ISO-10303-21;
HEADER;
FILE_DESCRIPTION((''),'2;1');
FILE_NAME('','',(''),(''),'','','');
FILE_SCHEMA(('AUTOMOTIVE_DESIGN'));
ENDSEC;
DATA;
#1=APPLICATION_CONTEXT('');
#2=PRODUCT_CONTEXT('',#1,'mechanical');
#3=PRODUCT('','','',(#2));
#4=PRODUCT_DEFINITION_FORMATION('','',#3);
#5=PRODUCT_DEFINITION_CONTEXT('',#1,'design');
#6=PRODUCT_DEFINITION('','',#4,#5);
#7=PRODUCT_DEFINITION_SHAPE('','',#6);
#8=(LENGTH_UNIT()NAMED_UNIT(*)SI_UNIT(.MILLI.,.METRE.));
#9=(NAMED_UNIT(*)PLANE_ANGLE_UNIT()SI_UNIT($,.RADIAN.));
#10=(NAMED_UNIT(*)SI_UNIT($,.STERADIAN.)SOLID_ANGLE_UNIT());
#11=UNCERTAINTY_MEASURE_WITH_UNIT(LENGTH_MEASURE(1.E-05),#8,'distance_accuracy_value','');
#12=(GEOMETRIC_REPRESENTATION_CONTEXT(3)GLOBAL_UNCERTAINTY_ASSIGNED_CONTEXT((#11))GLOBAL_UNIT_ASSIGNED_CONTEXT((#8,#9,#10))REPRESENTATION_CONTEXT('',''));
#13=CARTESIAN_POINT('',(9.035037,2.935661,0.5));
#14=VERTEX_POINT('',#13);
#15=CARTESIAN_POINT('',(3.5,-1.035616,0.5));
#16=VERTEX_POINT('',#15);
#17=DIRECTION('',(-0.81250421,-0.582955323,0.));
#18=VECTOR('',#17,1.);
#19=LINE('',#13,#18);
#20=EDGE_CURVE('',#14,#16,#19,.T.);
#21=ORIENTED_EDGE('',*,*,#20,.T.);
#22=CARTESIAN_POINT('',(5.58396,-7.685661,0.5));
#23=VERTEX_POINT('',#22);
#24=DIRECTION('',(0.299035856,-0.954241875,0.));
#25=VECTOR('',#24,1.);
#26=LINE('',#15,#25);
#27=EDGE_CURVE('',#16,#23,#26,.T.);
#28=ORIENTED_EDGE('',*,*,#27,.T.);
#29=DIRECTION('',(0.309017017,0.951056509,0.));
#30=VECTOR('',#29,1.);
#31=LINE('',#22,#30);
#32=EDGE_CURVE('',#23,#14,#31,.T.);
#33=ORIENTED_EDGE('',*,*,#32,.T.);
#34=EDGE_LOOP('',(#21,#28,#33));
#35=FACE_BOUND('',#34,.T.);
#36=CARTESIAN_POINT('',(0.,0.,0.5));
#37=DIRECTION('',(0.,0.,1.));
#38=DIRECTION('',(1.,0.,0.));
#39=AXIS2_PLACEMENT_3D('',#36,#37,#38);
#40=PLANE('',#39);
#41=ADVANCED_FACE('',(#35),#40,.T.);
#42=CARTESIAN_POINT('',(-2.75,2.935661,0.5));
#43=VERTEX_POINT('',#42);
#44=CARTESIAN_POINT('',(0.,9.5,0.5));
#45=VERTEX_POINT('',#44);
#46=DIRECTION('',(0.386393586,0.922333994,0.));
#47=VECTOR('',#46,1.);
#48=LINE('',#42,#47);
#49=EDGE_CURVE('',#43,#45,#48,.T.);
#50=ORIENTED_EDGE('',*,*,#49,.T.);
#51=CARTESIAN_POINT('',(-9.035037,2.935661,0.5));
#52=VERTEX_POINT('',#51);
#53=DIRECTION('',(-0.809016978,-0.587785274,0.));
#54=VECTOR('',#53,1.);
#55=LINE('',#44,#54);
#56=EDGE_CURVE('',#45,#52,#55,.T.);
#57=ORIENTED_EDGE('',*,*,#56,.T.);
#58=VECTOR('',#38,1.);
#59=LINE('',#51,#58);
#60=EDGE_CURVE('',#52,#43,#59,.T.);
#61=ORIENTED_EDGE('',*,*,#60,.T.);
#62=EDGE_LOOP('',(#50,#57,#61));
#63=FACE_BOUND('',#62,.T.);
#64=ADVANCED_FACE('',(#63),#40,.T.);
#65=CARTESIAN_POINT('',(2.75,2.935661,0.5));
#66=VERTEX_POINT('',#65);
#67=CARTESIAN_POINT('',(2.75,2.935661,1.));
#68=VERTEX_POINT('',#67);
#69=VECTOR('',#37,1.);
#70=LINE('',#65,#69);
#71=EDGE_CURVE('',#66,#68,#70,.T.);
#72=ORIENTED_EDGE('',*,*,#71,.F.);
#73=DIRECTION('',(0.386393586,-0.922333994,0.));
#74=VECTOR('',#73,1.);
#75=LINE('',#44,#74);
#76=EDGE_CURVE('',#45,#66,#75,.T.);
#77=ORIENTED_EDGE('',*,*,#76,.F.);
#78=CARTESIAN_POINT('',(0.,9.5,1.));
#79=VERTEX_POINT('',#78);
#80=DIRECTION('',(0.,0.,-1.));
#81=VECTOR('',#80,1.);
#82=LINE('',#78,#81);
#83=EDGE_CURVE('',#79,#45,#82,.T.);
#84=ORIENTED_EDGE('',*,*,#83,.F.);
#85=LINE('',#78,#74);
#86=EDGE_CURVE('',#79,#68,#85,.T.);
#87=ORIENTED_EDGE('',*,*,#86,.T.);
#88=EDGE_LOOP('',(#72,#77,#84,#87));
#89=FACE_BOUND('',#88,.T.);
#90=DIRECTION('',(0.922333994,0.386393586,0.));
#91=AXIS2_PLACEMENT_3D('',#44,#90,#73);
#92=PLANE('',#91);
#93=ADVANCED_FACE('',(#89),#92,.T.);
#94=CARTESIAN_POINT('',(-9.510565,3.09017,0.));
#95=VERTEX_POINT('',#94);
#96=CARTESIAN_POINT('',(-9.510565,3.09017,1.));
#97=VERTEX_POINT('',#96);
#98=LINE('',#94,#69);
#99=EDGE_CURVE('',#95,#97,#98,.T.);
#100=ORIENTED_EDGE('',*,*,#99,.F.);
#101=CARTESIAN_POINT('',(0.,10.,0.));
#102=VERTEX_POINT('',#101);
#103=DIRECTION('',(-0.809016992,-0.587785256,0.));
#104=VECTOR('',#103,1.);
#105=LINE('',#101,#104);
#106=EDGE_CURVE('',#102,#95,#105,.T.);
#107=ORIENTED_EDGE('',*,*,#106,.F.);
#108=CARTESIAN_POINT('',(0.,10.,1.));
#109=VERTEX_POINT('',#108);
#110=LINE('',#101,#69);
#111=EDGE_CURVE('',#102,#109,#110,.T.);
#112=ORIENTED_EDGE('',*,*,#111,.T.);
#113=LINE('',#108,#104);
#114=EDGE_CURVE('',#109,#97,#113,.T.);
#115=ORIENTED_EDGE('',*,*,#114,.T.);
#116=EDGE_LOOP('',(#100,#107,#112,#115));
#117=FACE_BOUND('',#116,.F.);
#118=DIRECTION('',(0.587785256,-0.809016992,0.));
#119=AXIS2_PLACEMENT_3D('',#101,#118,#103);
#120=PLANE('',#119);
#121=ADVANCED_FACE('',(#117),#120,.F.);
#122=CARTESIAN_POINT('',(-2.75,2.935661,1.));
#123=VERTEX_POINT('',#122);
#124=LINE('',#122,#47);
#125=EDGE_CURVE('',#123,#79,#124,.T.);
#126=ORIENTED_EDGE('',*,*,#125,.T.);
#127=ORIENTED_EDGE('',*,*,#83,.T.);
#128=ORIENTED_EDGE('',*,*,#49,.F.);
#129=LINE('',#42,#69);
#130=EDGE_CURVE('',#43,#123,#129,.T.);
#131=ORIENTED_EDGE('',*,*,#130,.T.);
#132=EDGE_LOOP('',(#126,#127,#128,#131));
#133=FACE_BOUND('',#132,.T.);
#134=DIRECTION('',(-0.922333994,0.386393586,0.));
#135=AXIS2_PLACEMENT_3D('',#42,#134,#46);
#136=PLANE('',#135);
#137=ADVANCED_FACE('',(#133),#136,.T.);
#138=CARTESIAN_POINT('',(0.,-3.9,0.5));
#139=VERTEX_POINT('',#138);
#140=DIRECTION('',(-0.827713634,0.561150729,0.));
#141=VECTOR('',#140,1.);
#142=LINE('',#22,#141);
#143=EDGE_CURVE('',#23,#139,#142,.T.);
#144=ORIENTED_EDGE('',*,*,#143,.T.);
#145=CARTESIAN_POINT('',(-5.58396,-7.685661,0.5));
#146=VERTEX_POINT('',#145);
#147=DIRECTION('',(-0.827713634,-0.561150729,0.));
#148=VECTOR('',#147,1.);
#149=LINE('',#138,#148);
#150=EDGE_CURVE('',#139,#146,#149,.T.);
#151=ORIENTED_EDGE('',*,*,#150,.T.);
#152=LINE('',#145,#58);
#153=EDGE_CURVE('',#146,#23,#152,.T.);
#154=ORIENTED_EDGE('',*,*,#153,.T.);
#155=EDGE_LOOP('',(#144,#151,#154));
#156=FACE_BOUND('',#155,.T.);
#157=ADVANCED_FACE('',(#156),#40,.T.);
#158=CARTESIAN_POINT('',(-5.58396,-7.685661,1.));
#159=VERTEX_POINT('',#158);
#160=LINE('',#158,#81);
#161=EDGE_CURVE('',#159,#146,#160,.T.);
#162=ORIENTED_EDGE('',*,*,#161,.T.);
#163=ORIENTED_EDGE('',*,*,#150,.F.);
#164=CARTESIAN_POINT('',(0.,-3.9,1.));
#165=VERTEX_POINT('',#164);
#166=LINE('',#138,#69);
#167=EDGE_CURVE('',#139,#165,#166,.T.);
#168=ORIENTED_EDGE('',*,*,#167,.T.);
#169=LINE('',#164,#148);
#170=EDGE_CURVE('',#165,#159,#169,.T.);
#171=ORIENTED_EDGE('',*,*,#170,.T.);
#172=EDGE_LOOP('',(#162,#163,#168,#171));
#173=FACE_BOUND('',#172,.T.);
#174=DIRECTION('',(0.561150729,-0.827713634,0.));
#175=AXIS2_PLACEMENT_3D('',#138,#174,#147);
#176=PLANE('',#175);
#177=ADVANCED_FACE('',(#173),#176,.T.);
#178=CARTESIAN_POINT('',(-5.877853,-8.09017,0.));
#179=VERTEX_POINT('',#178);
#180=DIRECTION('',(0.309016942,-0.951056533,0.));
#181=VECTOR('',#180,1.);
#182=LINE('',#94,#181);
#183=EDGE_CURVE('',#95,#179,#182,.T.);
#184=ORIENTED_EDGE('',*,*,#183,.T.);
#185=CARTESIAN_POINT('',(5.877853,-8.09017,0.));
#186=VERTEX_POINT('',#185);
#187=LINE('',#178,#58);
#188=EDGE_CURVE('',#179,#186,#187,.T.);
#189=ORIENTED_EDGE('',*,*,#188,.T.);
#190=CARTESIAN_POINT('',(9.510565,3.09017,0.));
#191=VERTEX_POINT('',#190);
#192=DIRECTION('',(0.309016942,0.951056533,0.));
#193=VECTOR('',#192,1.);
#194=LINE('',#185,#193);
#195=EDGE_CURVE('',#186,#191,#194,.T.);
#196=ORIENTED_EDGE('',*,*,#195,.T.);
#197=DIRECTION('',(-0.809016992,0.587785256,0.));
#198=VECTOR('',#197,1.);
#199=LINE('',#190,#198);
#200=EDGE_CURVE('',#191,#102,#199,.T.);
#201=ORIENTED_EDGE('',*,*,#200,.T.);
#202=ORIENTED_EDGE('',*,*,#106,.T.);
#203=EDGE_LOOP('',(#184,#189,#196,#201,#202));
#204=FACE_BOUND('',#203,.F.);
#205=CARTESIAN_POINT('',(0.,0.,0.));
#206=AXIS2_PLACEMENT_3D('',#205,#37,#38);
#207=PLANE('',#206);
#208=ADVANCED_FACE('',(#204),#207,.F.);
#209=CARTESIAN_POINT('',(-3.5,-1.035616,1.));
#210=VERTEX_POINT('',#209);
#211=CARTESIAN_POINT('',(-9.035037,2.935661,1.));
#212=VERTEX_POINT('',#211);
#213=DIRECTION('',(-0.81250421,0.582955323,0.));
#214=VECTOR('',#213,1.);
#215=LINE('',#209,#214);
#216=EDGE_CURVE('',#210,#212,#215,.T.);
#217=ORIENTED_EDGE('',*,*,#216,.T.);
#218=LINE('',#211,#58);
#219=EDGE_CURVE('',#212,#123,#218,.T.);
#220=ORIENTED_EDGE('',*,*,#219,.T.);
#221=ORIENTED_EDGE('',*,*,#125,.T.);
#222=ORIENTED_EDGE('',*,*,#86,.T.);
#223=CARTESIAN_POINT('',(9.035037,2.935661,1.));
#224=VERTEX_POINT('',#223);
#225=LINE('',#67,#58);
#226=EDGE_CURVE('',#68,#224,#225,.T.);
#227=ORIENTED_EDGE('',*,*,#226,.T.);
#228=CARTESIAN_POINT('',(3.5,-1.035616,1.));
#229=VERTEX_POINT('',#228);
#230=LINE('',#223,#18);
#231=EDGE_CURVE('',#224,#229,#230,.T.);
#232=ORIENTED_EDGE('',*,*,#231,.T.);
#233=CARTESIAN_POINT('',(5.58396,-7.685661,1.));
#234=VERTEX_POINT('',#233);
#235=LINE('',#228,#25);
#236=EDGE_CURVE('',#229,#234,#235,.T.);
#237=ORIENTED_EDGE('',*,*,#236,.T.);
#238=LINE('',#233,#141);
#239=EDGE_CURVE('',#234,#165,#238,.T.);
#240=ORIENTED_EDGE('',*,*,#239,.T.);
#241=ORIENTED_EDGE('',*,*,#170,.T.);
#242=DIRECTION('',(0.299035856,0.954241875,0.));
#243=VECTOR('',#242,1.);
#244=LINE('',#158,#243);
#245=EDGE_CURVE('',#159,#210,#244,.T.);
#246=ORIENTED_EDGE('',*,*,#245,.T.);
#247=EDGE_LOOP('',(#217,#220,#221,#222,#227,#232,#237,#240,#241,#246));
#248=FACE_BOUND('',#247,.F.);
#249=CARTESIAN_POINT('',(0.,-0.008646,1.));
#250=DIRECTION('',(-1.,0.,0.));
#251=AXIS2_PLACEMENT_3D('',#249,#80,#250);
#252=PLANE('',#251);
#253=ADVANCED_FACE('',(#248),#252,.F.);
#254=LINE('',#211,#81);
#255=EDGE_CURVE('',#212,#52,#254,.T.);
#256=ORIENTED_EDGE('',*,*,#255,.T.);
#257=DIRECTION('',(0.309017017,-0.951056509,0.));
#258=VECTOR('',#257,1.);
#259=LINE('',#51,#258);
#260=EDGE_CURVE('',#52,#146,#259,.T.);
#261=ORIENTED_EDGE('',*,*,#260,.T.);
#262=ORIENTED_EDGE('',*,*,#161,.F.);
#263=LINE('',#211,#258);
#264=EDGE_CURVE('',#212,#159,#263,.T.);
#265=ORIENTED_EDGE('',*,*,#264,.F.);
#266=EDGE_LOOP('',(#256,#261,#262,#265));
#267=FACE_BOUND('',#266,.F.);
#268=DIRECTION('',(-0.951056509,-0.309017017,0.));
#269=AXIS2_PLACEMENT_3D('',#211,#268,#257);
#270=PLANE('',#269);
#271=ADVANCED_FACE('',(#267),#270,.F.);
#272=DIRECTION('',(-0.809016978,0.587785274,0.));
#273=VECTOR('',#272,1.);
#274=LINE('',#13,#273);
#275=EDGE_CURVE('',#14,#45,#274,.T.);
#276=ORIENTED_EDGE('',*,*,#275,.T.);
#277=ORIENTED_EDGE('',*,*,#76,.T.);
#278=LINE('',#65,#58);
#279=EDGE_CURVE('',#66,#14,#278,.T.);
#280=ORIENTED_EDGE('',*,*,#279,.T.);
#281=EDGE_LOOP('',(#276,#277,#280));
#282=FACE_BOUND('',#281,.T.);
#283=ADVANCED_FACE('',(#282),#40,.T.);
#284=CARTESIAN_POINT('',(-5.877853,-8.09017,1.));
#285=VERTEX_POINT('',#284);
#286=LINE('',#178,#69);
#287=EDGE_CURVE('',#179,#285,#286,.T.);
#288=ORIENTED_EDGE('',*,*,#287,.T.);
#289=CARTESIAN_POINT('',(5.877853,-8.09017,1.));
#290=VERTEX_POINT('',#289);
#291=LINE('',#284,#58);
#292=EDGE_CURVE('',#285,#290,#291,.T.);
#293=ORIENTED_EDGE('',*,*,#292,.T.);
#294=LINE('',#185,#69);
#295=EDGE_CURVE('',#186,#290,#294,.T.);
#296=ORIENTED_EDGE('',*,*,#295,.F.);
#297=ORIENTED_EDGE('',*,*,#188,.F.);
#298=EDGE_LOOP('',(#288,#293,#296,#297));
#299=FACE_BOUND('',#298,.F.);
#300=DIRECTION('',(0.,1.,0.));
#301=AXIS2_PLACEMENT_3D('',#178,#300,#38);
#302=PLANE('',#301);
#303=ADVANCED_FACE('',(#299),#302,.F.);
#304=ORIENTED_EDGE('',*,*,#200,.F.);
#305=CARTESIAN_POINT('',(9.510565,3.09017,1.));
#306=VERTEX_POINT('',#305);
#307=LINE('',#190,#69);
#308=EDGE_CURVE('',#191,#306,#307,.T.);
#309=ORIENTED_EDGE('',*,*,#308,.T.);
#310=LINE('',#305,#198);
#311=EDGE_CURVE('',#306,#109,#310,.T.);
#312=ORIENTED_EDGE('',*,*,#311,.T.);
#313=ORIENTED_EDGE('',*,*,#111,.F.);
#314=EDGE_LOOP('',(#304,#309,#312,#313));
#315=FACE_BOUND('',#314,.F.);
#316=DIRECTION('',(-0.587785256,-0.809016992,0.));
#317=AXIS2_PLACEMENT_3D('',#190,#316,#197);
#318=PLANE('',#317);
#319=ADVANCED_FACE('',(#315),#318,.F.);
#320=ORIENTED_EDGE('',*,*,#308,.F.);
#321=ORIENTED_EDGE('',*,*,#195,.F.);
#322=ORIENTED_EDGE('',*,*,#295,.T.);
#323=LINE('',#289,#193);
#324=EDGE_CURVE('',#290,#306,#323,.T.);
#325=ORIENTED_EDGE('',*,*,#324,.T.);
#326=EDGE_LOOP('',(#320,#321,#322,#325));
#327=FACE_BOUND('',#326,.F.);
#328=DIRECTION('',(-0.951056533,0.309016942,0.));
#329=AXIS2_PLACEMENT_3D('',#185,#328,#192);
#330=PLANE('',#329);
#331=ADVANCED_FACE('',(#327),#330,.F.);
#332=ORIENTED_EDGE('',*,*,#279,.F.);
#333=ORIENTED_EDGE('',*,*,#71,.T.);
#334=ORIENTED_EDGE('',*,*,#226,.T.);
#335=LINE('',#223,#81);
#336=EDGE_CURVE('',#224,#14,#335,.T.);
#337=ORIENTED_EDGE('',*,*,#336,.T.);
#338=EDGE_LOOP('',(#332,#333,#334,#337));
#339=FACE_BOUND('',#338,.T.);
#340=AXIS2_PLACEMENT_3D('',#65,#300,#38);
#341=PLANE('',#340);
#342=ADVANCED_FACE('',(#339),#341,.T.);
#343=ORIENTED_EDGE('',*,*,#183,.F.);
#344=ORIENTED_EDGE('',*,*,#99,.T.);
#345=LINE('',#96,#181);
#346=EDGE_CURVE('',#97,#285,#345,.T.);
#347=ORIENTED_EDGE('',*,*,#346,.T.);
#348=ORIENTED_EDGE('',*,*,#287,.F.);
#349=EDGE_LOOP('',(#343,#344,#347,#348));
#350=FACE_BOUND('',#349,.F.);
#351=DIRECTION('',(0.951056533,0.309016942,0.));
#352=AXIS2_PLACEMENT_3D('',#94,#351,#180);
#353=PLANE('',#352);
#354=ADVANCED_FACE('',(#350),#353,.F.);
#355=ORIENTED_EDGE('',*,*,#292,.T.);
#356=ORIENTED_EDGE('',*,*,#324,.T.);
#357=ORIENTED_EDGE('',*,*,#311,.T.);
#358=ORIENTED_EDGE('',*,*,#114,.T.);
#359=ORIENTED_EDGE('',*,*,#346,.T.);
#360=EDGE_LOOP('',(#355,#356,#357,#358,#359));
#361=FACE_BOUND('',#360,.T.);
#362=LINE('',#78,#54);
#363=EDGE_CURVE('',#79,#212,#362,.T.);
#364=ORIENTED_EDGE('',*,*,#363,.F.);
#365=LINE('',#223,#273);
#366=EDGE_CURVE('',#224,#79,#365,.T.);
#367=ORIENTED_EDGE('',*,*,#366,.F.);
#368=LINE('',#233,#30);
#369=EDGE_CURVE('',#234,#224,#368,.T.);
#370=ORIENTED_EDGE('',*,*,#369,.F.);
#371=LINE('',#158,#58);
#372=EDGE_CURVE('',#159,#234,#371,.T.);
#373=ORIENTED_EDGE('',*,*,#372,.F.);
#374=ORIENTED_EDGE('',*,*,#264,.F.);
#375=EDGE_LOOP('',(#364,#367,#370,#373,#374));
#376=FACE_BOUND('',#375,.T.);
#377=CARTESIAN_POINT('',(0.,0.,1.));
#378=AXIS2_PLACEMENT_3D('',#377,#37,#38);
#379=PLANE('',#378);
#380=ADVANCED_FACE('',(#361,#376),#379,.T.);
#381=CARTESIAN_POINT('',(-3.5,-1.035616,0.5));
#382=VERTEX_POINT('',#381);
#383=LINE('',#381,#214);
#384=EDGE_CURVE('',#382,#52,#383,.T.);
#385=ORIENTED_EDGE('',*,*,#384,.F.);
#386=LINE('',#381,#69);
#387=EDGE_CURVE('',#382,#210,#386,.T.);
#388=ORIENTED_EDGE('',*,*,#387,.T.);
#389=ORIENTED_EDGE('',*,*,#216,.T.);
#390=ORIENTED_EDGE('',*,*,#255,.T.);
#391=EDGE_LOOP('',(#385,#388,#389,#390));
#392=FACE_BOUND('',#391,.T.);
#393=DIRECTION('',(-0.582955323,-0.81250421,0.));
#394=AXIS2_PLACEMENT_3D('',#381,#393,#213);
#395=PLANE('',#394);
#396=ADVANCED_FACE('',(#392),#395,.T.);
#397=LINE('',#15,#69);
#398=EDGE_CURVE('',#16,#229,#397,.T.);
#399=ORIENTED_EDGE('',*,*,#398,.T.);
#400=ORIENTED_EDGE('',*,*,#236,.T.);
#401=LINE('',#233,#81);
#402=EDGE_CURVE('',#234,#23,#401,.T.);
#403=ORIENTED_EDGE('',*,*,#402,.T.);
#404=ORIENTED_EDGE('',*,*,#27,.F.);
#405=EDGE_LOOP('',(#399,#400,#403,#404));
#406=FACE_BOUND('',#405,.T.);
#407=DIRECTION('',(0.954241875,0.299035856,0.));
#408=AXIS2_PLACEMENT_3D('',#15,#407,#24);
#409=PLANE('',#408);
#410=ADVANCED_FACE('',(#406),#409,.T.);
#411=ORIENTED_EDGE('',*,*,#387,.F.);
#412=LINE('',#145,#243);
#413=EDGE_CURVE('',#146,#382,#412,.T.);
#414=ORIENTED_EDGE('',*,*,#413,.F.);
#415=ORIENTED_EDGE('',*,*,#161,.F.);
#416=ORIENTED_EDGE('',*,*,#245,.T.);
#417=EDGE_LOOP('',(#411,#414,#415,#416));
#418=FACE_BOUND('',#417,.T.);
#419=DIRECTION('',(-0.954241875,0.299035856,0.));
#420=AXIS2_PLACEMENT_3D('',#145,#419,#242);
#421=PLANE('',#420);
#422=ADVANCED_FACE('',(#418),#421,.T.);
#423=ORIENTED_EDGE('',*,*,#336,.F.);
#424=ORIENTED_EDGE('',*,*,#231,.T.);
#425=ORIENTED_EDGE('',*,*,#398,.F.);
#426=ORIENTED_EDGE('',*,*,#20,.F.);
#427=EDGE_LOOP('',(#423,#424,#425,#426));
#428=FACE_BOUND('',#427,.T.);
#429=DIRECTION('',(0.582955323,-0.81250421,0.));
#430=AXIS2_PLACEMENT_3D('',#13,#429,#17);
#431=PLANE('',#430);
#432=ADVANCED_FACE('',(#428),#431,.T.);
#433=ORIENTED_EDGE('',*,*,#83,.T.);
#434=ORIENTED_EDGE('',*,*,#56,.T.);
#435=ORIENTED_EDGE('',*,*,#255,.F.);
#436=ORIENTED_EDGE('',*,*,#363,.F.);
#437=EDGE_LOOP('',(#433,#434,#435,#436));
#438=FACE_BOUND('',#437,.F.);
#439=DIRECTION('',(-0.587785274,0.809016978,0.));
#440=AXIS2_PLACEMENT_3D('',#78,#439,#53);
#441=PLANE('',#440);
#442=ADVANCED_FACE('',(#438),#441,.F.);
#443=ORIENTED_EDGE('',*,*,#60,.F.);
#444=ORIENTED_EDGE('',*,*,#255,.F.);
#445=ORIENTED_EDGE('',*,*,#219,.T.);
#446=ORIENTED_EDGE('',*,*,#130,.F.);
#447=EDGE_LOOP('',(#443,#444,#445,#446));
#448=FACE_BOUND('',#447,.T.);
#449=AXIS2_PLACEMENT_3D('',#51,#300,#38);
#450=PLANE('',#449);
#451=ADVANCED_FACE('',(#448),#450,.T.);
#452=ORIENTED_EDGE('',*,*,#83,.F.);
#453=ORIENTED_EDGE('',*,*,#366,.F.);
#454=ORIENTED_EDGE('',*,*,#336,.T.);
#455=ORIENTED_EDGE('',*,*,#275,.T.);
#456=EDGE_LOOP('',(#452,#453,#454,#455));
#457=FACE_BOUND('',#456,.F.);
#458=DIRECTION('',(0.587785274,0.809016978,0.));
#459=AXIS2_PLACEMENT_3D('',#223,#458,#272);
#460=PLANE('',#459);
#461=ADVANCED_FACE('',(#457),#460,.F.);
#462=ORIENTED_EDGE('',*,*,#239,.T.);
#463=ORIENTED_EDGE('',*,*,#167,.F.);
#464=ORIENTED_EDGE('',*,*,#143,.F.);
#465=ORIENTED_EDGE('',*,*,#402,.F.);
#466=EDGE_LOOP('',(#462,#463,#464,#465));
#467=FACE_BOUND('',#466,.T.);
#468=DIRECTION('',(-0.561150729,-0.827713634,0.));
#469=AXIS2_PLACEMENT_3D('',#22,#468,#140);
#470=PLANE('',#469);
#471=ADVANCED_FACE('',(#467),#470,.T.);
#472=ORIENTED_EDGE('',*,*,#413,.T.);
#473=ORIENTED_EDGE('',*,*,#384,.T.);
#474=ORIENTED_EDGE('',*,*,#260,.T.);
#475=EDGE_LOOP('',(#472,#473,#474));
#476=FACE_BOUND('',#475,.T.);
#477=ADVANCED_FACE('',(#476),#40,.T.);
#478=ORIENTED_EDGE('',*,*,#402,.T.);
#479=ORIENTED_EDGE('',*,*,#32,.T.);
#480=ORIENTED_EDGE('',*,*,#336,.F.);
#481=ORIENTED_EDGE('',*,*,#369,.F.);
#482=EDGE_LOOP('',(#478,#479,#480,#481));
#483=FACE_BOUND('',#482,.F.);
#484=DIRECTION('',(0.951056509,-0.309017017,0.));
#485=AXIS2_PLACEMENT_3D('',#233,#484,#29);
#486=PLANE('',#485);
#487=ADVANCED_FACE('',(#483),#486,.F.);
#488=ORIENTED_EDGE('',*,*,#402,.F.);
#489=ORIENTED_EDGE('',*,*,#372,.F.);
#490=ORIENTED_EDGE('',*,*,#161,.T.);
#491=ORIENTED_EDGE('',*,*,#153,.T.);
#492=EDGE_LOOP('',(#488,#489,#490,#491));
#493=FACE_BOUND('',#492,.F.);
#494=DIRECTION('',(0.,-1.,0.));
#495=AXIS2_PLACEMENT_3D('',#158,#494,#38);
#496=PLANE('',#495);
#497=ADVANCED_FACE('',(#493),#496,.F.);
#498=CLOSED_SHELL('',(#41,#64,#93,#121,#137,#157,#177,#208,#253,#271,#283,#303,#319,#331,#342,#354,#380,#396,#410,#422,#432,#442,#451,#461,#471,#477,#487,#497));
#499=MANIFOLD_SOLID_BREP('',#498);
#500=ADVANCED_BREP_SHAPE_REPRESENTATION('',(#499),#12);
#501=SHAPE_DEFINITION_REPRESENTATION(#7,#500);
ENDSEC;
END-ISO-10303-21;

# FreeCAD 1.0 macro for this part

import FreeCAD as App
import Part
import Sketcher
from FreeCAD import Vector
Q = App.Units.Quantity


def add_polygon(sketch, points):
    """Adds a closed chain of lines whose ends are joined by coincident constraints."""
    first, n = sketch.GeometryCount, len(points)
    for a, b in zip(points, points[1:] + points[:1]):
        sketch.addGeometry(Part.LineSegment(App.Vector(*a, 0), App.Vector(*b, 0)), False)
    for i in range(n):
        sketch.addConstraint(Sketcher.Constraint("Coincident", first + i, 2, first + (i + 1) % n, 1))

doc = App.newDocument("Part")
body = doc.addObject("PartDesign::Body", "Body")

# Sketch on XY plane
sketch1 = doc.addObject("Sketcher::SketchObject", "Sketch")
body.addObject(sketch1)
sketch1.AttachmentSupport = (doc.XY_Plane, [""])
sketch1.MapMode = "FlatFace"
add_polygon(sketch1, [(0, 10), (-10, 3), (-6, -8), (6, -8), (10, 3)])  # lines 0-4
sketch1.addConstraint([
    Sketcher.Constraint("Horizontal", 2),
    Sketcher.Constraint("Symmetric", 0, 2, 3, 2, -2),
    Sketcher.Constraint("PointOnObject", 4, 2, -2),
    Sketcher.Constraint("Equal", 0, 1),
    Sketcher.Constraint("Equal", 1, 3),
    Sketcher.Constraint("Angle", 0, Q("-144 deg")),
    Sketcher.Constraint("Angle", 1, Q("-72.000003 deg")),
    Sketcher.Constraint("DistanceY", -1, 1, 4, 2, Q("10 mm")),
    Sketcher.Constraint("DistanceX", 2, 1, 2, 2, Q("11.755706 mm")),
])
pad1 = doc.addObject("PartDesign::Pad", "Pad")
body.addObject(pad1)
pad1.Profile = sketch1
pad1.Length = 1

# Sketch on XY plane
sketch2 = doc.addObject("Sketcher::SketchObject", "Sketch001")
body.addObject(sketch2)
sketch2.AttachmentSupport = (doc.XY_Plane, [""])
sketch2.MapMode = "FlatFace"
sketch2.AttachmentOffset = App.Placement(Vector(0, 0, 1), App.Rotation())
add_polygon(sketch2, [(0, 10), (-9, 3), (-6, -8), (6, -8), (9, 3)])  # lines 0-4
sketch2.addConstraint([
    Sketcher.Constraint("Horizontal", 2),
    Sketcher.Constraint("Symmetric", 0, 2, 3, 2, -2),
    Sketcher.Constraint("PointOnObject", 4, 2, -2),
    Sketcher.Constraint("Equal", 0, 1),
    Sketcher.Constraint("Equal", 1, 3),
    Sketcher.Constraint("Angle", 0, Q("-143.999998 deg")),
    Sketcher.Constraint("Angle", 1, Q("-71.999999 deg")),
    Sketcher.Constraint("DistanceY", -1, 1, 4, 2, Q("9.5 mm")),
    Sketcher.Constraint("DistanceX", 2, 1, 2, 2, Q("11.16792 mm")),
])
pocket1 = doc.addObject("PartDesign::Pocket", "Pocket")
body.addObject(pocket1)
pocket1.Profile = sketch2
pocket1.Length = 0.5

# Sketch on XY plane
sketch3 = doc.addObject("Sketcher::SketchObject", "Sketch002")
body.addObject(sketch3)
sketch3.AttachmentSupport = (doc.XY_Plane, [""])
sketch3.MapMode = "FlatFace"
sketch3.AttachmentOffset = App.Placement(Vector(0, 0, 0.5), App.Rotation())
add_polygon(sketch3, [(-3, 3), (-9, 3), (-4, -1), (-6, -8), (0, -4), (6, -8), (4, -1), (9, 3), (3, 3), (0, 10)])  # lines 0-9
sketch3.addConstraint([
    Sketcher.Constraint("Horizontal", 0),
    Sketcher.Constraint("Horizontal", 7),
    Sketcher.Constraint("Symmetric", 2, 2, 4, 2, -2),
    Sketcher.Constraint("Symmetric", 1, 2, 5, 2, -2),
    Sketcher.Constraint("Symmetric", 0, 2, 6, 2, -2),
    Sketcher.Constraint("PointOnObject", 3, 2, -2),
    Sketcher.Constraint("PointOnObject", 8, 2, -2),
    Sketcher.Constraint("Equal", 0, 7),
    Sketcher.Constraint("DistanceX", 1, 2, 5, 2, Q("7 mm")),
    Sketcher.Constraint("DistanceY", 3, 2, -1, 1, Q("3.9 mm")),
    Sketcher.Constraint("DistanceY", -1, 1, 8, 2, Q("9.5 mm")),
    Sketcher.Constraint("DistanceX", 9, 2, 7, 2, Q("5.5 mm")),
    Sketcher.Constraint("Distance", 2, Q("6.96893 mm")),
    Sketcher.Constraint("DistanceX", 0, 2, 0, 1, Q("6.285037 mm")),
    Sketcher.Constraint("DistanceY", -1, 1, 0, 2, Q("2.935661 mm")),
    Sketcher.Constraint("DistanceX", 2, 2, -1, 1, Q("5.58396 mm")),
    Sketcher.Constraint("DistanceY", 2, 2, -1, 1, Q("7.685661 mm")),
])
pad2 = doc.addObject("PartDesign::Pad", "Pad001")
body.addObject(pad2)
pad2.Profile = sketch3
pad2.Length = 0.5

doc.recompute()
